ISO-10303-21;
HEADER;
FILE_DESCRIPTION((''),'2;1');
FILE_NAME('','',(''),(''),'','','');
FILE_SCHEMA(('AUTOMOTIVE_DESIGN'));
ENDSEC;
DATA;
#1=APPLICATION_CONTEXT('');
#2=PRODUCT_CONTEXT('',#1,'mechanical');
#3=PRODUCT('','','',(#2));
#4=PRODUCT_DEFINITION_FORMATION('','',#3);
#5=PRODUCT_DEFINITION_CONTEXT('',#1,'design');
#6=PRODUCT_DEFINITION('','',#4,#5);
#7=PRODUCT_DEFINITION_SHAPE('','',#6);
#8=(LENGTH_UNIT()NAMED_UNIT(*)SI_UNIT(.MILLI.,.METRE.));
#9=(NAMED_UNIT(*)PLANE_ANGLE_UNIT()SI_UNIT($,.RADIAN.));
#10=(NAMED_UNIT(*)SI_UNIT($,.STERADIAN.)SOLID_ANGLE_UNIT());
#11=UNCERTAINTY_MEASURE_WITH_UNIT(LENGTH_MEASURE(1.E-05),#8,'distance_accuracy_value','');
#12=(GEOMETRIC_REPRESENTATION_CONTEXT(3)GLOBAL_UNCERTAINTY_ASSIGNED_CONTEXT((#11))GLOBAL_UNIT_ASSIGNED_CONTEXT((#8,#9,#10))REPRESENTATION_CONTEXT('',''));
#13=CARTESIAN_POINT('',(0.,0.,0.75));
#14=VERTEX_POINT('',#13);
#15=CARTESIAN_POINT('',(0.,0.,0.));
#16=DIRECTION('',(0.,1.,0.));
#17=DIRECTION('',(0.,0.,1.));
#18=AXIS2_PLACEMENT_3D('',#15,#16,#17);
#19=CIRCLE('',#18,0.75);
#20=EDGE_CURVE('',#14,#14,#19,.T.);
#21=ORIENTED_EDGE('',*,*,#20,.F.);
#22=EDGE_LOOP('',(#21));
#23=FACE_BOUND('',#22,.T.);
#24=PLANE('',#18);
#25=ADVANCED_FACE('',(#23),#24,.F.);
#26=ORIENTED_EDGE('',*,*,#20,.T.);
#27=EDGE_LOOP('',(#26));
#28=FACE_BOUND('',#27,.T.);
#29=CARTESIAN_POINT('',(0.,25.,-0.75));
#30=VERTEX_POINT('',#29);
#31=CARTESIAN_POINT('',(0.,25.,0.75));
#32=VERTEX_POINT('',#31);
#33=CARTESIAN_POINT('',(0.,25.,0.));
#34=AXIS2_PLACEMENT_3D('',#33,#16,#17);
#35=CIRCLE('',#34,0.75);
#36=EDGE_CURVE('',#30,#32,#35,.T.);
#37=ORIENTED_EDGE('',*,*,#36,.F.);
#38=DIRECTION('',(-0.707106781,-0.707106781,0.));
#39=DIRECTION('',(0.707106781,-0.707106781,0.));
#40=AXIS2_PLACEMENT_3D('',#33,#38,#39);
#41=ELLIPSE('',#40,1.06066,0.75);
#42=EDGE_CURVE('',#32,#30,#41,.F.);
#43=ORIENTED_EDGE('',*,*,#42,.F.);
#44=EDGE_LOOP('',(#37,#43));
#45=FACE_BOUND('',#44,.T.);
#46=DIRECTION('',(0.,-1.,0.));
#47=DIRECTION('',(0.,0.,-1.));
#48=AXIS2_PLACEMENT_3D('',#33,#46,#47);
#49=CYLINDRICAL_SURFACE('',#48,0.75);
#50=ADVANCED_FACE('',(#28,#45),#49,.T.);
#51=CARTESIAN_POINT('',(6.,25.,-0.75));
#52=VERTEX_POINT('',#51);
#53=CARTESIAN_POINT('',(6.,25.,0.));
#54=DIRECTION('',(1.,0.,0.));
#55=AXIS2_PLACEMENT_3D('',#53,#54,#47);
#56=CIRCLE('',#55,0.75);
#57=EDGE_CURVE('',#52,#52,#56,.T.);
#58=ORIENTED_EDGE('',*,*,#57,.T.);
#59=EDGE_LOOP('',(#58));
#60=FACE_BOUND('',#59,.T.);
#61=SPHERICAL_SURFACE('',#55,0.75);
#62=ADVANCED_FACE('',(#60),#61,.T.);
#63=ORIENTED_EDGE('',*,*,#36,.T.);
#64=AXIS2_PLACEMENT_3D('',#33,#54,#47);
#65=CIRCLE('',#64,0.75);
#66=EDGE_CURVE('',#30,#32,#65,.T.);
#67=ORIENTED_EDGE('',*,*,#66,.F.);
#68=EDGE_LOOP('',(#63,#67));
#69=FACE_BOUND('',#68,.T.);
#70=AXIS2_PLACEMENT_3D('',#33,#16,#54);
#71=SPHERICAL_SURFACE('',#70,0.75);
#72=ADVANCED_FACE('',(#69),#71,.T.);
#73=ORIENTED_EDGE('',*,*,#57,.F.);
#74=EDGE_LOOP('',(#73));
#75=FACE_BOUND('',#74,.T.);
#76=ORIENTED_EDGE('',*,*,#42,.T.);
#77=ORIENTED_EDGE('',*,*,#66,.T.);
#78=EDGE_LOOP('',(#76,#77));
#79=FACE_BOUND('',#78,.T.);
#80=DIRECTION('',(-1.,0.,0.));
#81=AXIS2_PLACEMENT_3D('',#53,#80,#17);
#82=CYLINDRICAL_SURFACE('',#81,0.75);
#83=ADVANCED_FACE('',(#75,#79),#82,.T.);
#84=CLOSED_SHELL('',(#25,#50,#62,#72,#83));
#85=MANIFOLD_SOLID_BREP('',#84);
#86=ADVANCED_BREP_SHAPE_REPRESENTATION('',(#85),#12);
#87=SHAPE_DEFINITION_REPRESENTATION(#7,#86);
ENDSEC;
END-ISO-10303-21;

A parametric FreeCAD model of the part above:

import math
import FreeCAD as App
import Part
import Sketcher
from FreeCAD import Vector
Q = App.Units.Quantity

doc = App.newDocument("Part")
body = doc.addObject("PartDesign::Body", "Body")

# Sketch on XZ plane
sketch1 = body.newObject("Sketcher::SketchObject", "Sketch")
sketch1.AttachmentSupport = (doc.getObject("XZ_Plane"), [""])
sketch1.MapMode = "FlatFace"
sketch1.addGeometry(Part.Circle(Vector(0, 0, 0), Vector(0, 0, 1), 0.8), False)
sketch1.addConstraint(Sketcher.Constraint("Coincident", 0, 3, -1, 1))
sketch1.addConstraint(Sketcher.Constraint("Diameter", 0, Q("1.5 mm")))
pad1 = body.newObject("PartDesign::Pad", "Pad")
pad1.Profile = sketch1
pad1.Length = 25
pad1.Reversed = True

# Sketch on XY plane
sketch2 = body.newObject("Sketcher::SketchObject", "Sketch001")
sketch2.AttachmentSupport = (doc.getObject("XY_Plane"), [""])
sketch2.MapMode = "FlatFace"
sketch2.addGeometry(Part.LineSegment(Vector(0, 25.8, 0), Vector(0, 24.2, 0)), False)
sketch2.addGeometry(Part.ArcOfCircle(Part.Circle(Vector(0, 25, 0), Vector(0, 0, 1), 0.8), math.radians(-90), math.radians(90)), False)
sketch2.addConstraint(Sketcher.Constraint("Coincident", 0, 1, 1, 2))
sketch2.addConstraint(Sketcher.Constraint("Coincident", 1, 1, 0, 2))
sketch2.addConstraint(Sketcher.Constraint("Vertical", 0))
sketch2.addConstraint(Sketcher.Constraint("PointOnObject", 1, 3, -2))
sketch2.addConstraint(Sketcher.Constraint("PointOnObject", 0, 1, -2))
sketch2.addConstraint(Sketcher.Constraint("Radius", 1, Q("0.75 mm")))
sketch2.addConstraint(Sketcher.Constraint("DistanceY", -1, 1, 1, 3, Q("25 mm")))
revolution = body.newObject("PartDesign::Revolution", "Revolution")
revolution.Profile = sketch2
revolution.ReferenceAxis = (sketch2, ["V_Axis"])
revolution.Angle = 360

# Sketch on YZ plane
sketch3 = body.newObject("Sketcher::SketchObject", "Sketch002")
sketch3.AttachmentSupport = (doc.getObject("YZ_Plane"), [""])
sketch3.MapMode = "FlatFace"
sketch3.addGeometry(Part.Circle(Vector(25, 0, 0), Vector(0, 0, 1), 0.8), False)
sketch3.addConstraint(Sketcher.Constraint("PointOnObject", 0, 3, -1))
sketch3.addConstraint(Sketcher.Constraint("Diameter", 0, Q("1.5 mm")))
sketch3.addConstraint(Sketcher.Constraint("DistanceX", -1, 1, 0, 3, Q("25 mm")))
pad2 = body.newObject("PartDesign::Pad", "Pad001")
pad2.Profile = sketch3
pad2.Length = 6

# Sketch on YZ plane
sketch4 = body.newObject("Sketcher::SketchObject", "Sketch003")
sketch4.AttachmentSupport = (doc.getObject("YZ_Plane"), [""])
sketch4.MapMode = "FlatFace"
sketch4.AttachmentOffset = App.Placement(Vector(0, 0, 6), App.Rotation())
sketch4.addGeometry(Part.LineSegment(Vector(25.8, 0, 0), Vector(24.2, 0, 0)), False)
sketch4.addGeometry(Part.ArcOfCircle(Part.Circle(Vector(25, 0, 0), Vector(0, 0, 1), 0.8), math.radians(180), math.radians(360)), False)
sketch4.addConstraint(Sketcher.Constraint("Coincident", 0, 1, 1, 2))
sketch4.addConstraint(Sketcher.Constraint("Coincident", 1, 1, 0, 2))
sketch4.addConstraint(Sketcher.Constraint("Horizontal", 0))
sketch4.addConstraint(Sketcher.Constraint("PointOnObject", 1, 3, -1))
sketch4.addConstraint(Sketcher.Constraint("PointOnObject", 0, 1, -1))
sketch4.addConstraint(Sketcher.Constraint("Radius", 1, Q("0.75 mm")))
sketch4.addConstraint(Sketcher.Constraint("DistanceX", -1, 1, 1, 3, Q("25 mm")))
revolution2 = body.newObject("PartDesign::Revolution", "Revolution001")
revolution2.Profile = sketch4
revolution2.ReferenceAxis = (sketch4, ["H_Axis"])
revolution2.Angle = 360

doc.recompute()
